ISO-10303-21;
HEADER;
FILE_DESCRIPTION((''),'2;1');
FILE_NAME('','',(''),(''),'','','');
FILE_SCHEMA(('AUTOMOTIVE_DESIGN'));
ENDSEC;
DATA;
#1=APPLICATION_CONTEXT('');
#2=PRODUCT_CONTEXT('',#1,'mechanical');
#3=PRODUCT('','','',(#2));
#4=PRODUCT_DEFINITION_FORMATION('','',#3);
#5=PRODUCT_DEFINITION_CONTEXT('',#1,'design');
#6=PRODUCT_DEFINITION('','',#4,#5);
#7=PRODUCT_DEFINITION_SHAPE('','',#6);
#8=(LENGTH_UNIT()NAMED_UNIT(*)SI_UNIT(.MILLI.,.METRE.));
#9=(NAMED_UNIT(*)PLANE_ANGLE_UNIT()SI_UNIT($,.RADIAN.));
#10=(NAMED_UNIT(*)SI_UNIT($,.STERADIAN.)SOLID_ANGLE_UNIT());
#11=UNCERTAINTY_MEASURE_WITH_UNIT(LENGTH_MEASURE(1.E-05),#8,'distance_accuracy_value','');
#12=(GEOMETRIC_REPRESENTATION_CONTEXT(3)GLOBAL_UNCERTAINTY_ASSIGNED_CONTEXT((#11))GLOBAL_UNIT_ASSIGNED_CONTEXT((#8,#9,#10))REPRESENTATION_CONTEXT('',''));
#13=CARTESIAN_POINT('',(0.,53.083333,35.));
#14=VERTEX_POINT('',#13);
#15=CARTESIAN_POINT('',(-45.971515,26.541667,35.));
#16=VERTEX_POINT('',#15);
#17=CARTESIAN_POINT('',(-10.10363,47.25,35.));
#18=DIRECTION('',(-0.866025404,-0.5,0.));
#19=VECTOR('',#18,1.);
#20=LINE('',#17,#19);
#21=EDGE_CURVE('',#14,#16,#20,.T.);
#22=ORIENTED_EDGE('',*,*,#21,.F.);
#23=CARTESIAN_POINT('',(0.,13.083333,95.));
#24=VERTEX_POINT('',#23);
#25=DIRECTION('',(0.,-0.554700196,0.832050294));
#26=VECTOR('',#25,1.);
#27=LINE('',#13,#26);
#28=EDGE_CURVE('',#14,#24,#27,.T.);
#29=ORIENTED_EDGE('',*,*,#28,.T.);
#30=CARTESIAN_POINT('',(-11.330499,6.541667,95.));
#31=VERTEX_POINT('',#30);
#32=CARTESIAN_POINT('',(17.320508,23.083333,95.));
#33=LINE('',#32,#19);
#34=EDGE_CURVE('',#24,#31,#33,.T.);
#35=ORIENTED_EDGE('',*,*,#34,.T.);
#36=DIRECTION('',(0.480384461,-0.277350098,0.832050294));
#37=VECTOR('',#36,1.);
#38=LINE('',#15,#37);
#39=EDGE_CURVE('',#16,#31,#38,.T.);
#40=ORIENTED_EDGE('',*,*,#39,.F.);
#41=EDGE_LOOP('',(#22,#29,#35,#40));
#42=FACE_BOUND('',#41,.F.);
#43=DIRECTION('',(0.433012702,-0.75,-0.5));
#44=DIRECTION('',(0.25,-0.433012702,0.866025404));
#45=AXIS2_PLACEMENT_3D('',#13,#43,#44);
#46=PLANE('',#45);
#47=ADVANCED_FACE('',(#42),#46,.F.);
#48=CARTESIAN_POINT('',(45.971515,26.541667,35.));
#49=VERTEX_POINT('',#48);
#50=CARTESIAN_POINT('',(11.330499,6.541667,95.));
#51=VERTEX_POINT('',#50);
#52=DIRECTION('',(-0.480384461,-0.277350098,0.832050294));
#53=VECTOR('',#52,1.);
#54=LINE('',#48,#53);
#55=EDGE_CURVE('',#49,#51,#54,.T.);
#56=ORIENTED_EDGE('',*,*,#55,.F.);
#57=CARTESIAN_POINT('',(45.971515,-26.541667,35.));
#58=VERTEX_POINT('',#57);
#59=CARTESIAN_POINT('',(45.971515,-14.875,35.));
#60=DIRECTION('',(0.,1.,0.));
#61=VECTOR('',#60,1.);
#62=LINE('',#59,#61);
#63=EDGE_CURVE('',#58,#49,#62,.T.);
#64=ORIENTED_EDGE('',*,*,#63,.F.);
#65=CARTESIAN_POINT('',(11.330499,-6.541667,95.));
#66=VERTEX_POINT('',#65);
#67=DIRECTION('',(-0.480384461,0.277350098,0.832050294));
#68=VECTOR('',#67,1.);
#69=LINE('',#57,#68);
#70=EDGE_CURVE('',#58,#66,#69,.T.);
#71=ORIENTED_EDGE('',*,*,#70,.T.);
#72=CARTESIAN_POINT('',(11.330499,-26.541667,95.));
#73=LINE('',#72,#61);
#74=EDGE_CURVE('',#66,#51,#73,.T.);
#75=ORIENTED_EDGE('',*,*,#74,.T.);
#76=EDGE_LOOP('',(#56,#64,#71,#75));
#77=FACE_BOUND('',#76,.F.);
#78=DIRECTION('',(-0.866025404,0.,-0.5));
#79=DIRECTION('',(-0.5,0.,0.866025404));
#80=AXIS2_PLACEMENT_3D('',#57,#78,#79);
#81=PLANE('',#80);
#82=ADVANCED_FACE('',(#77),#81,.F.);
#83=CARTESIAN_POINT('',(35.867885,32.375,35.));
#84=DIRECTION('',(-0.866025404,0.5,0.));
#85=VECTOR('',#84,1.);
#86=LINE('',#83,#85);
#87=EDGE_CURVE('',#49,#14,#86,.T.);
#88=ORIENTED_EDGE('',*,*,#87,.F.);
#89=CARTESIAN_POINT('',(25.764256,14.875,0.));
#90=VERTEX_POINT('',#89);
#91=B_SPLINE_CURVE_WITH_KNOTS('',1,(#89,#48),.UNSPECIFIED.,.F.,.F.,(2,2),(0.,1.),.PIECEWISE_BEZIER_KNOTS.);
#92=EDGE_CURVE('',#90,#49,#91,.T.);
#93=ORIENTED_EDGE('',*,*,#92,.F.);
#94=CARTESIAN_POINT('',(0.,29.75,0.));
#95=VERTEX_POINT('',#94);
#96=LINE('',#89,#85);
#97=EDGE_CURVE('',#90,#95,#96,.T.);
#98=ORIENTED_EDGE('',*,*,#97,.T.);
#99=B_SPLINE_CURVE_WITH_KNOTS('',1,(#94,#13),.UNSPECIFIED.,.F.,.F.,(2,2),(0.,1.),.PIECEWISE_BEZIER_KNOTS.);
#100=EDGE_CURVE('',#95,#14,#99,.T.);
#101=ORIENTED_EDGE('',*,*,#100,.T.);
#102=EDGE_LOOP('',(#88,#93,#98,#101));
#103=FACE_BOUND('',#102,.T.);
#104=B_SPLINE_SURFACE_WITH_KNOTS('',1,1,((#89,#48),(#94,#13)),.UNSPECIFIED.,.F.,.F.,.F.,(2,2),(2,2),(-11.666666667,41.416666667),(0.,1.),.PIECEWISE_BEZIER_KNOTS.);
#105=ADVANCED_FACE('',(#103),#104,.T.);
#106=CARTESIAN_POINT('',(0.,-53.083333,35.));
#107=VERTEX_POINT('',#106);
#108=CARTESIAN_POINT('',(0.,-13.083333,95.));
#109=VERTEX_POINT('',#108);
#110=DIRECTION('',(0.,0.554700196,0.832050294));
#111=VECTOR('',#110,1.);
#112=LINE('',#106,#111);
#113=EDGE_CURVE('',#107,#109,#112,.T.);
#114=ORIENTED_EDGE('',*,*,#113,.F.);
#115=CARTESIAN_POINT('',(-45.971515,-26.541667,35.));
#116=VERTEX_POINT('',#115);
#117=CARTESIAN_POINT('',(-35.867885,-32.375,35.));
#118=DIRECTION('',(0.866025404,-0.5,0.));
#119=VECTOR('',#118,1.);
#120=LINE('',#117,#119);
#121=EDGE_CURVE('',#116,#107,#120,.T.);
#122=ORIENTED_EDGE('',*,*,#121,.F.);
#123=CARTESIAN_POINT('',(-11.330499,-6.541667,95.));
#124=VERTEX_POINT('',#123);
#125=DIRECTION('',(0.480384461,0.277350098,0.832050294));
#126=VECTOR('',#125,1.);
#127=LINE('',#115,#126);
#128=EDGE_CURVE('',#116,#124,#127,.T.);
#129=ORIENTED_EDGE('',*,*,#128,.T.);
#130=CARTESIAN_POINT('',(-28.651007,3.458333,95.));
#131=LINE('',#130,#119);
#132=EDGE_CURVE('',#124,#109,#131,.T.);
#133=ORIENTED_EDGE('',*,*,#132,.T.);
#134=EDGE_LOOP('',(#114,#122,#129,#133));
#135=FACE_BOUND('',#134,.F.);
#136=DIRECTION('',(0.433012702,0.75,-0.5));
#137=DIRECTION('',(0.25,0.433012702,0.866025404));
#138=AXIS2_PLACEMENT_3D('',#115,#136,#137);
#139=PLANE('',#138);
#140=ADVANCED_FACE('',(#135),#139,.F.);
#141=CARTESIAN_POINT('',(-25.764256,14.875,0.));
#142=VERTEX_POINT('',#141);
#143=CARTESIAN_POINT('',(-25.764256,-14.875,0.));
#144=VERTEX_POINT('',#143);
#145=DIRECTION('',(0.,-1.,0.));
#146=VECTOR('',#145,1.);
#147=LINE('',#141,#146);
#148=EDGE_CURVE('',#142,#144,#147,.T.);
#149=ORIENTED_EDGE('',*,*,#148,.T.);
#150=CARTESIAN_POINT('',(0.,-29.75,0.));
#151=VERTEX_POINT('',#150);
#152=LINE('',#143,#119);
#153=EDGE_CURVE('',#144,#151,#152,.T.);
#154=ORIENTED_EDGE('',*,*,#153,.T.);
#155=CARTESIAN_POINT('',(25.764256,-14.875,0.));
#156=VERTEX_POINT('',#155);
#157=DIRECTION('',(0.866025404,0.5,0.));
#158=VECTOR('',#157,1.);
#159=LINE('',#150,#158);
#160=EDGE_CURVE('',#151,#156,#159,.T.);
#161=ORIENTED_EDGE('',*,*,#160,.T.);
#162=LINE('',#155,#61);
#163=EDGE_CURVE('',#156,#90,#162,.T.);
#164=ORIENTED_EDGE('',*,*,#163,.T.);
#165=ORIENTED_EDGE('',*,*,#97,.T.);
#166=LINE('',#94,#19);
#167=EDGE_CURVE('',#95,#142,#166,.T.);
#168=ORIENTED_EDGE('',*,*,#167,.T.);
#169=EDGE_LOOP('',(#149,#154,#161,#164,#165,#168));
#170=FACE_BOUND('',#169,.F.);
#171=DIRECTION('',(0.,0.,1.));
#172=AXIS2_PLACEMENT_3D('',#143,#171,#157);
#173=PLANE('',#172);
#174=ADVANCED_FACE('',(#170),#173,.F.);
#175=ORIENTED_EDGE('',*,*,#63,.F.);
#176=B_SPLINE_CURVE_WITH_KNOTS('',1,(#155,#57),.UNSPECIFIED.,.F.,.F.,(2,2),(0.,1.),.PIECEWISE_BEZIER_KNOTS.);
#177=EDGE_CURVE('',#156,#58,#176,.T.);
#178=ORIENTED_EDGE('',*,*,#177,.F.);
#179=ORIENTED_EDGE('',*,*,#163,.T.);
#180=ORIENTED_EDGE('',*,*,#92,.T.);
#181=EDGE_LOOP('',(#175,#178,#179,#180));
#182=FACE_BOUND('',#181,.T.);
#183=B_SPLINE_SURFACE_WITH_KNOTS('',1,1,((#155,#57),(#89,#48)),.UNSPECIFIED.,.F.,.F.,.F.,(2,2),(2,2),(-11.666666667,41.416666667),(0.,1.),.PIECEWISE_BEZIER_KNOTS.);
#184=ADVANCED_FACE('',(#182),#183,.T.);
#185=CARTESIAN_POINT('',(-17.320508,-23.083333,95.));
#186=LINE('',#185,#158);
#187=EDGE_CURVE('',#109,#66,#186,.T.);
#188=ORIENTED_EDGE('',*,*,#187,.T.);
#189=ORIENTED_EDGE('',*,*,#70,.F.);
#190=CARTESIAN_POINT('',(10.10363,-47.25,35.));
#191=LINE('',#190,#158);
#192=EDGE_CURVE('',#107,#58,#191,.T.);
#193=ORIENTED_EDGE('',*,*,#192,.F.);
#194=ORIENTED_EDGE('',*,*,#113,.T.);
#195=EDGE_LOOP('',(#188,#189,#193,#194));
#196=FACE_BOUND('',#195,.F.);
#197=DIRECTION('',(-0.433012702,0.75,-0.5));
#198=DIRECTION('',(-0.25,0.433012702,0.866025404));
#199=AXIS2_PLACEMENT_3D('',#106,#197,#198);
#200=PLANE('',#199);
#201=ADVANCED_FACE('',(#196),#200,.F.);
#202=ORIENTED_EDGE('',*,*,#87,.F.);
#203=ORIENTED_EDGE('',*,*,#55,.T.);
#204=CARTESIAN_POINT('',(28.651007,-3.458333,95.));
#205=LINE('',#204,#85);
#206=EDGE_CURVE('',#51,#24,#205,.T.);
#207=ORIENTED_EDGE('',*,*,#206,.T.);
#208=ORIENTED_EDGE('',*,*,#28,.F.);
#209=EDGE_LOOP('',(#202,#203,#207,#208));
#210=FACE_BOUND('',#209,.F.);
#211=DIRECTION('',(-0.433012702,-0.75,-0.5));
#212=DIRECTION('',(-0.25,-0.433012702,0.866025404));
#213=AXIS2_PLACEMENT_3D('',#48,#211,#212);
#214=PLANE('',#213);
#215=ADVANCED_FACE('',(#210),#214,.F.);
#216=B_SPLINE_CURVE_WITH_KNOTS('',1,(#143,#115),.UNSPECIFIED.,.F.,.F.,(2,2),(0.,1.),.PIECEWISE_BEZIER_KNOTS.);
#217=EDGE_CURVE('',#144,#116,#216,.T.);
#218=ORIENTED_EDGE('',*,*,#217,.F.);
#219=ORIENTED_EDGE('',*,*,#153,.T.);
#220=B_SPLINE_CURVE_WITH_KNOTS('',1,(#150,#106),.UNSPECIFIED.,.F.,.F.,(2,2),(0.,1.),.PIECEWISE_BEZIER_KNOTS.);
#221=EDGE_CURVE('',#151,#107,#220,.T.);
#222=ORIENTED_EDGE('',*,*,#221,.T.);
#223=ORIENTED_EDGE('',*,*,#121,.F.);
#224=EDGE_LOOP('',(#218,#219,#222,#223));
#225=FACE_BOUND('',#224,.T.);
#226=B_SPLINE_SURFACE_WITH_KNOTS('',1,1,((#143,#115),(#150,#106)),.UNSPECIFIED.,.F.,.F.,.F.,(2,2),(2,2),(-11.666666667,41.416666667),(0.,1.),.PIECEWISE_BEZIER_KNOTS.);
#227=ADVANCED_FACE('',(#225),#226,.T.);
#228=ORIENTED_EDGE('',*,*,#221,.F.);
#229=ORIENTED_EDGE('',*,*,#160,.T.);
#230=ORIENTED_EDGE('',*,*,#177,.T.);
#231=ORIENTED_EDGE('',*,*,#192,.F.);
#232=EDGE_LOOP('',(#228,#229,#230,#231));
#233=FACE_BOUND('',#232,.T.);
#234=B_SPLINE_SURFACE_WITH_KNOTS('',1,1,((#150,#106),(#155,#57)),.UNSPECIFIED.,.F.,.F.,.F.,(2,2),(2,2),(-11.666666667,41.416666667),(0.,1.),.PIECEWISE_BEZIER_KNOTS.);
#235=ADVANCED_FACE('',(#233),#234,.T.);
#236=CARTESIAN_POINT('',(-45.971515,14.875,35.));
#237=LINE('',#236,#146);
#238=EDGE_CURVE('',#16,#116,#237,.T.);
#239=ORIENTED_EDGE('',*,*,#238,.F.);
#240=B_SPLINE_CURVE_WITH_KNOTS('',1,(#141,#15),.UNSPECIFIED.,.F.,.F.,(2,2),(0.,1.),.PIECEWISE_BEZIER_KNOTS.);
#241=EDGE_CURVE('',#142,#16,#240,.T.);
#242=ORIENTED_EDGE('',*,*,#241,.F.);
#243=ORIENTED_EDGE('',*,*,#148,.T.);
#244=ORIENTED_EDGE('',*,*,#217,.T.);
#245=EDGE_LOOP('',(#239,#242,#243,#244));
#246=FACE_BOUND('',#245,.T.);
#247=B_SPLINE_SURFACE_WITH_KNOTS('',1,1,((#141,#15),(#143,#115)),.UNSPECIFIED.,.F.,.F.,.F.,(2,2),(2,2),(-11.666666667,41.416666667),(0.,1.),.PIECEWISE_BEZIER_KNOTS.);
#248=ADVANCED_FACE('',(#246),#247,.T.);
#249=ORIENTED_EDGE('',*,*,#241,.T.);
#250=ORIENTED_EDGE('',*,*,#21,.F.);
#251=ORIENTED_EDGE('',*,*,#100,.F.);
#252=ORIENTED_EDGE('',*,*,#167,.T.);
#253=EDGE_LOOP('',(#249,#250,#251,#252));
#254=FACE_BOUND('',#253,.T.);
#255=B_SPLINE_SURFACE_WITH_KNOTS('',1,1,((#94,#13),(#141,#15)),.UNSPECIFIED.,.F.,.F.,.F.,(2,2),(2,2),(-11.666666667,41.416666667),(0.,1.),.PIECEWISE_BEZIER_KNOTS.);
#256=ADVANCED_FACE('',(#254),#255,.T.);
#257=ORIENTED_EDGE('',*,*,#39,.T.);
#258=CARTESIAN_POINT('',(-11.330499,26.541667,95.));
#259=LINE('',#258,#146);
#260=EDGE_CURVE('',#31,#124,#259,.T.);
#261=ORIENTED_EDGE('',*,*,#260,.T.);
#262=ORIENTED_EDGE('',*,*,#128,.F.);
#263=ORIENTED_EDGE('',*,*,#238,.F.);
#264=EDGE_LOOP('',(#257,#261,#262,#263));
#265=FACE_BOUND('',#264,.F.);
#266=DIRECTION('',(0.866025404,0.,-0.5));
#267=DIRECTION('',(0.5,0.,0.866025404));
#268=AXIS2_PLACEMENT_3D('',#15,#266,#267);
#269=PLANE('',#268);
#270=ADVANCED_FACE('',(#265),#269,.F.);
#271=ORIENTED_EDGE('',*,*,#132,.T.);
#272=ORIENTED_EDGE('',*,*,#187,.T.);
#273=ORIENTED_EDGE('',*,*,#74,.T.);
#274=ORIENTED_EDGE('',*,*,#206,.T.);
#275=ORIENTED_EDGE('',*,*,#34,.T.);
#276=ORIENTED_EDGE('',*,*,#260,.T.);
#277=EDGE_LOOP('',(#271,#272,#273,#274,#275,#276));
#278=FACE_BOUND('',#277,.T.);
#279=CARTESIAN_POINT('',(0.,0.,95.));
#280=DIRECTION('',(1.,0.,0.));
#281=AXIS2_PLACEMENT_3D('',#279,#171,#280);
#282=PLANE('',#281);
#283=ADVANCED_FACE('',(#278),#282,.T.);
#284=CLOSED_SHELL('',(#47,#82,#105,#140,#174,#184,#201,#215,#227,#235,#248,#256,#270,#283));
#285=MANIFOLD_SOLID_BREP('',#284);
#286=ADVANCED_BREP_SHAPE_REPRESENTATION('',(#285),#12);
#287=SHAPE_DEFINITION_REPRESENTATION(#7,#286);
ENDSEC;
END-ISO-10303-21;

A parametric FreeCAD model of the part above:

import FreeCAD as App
import Part
import Sketcher

V = App.Vector
Q = App.Units.Quantity

doc = App.newDocument("Part")
body = doc.addObject("PartDesign::Body", "Body")

sketch1 = body.newObject("Sketcher::SketchObject", "Sketch")
sketch1.AttachmentSupport = (doc.getObject("XY_Plane"), [""])
sketch1.MapMode = "FlatFace"
sketch1.addGeometry(Part.LineSegment(V(-26, -15, 0), V(0, -30, 0)), False)
sketch1.addGeometry(Part.LineSegment(V(0, -30, 0), V(26, -15, 0)), False)
sketch1.addGeometry(Part.LineSegment(V(26, -15, 0), V(26, 15, 0)), False)
sketch1.addGeometry(Part.LineSegment(V(26, 15, 0), V(0, 30, 0)), False)
sketch1.addGeometry(Part.LineSegment(V(0, 30, 0), V(-26, 15, 0)), False)
sketch1.addGeometry(Part.LineSegment(V(-26, 15, 0), V(-26, -15, 0)), False)
sketch1.addConstraint(Sketcher.Constraint("Coincident", 0, 2, 1, 1))
sketch1.addConstraint(Sketcher.Constraint("Coincident", 1, 2, 2, 1))
sketch1.addConstraint(Sketcher.Constraint("Coincident", 2, 2, 3, 1))
sketch1.addConstraint(Sketcher.Constraint("Coincident", 3, 2, 4, 1))
sketch1.addConstraint(Sketcher.Constraint("Coincident", 4, 2, 5, 1))
sketch1.addConstraint(Sketcher.Constraint("Coincident", 5, 2, 0, 1))
sketch1.addConstraint(Sketcher.Constraint("Vertical", 2))
sketch1.addConstraint(Sketcher.Constraint("Vertical", 5))
sketch1.addConstraint(Sketcher.Constraint("Symmetric", 0, 2, 3, 2, -1, 1))
sketch1.addConstraint(Sketcher.Constraint("Symmetric", 1, 2, 4, 2, -1, 1))
sketch1.addConstraint(Sketcher.Constraint("PointOnObject", 0, 2, -2))
sketch1.addConstraint(Sketcher.Constraint("Parallel", 0, 3))
sketch1.addConstraint(Sketcher.Constraint("Horizontal", 2, 2, 4, 2))
sketch1.addConstraint(Sketcher.Constraint("Angle", 0, Q("-30 deg")))
sketch1.addConstraint(Sketcher.Constraint("DistanceY", 2, 1, 2, 2, 29.75))
sketch1.addConstraint(Sketcher.Constraint("DistanceY", 0, 2, 3, 2, 59.5))
pad1 = body.newObject("PartDesign::Pad", "Pad")
pad1.Profile = sketch1
pad1.Length = 35
pad1.TaperAngle = 30

sketch2 = body.newObject("Sketcher::SketchObject", "Sketch001")
sketch2.AttachmentSupport = (doc.getObject("XY_Plane"), [""])
sketch2.MapMode = "FlatFace"
sketch2.AttachmentOffset = App.Placement(V(0, 0, 35), App.Rotation())
sketch2.addGeometry(Part.LineSegment(V(-46, -27, 0), V(0, -53, 0)), False)
sketch2.addGeometry(Part.LineSegment(V(0, -53, 0), V(46, -27, 0)), False)
sketch2.addGeometry(Part.LineSegment(V(46, -27, 0), V(46, 27, 0)), False)
sketch2.addGeometry(Part.LineSegment(V(46, 27, 0), V(0, 53, 0)), False)
sketch2.addGeometry(Part.LineSegment(V(0, 53, 0), V(-46, 27, 0)), False)
sketch2.addGeometry(Part.LineSegment(V(-46, 27, 0), V(-46, -27, 0)), False)
sketch2.addConstraint(Sketcher.Constraint("Coincident", 0, 2, 1, 1))
sketch2.addConstraint(Sketcher.Constraint("Coincident", 1, 2, 2, 1))
sketch2.addConstraint(Sketcher.Constraint("Coincident", 2, 2, 3, 1))
sketch2.addConstraint(Sketcher.Constraint("Coincident", 3, 2, 4, 1))
sketch2.addConstraint(Sketcher.Constraint("Coincident", 4, 2, 5, 1))
sketch2.addConstraint(Sketcher.Constraint("Coincident", 5, 2, 0, 1))
sketch2.addConstraint(Sketcher.Constraint("Vertical", 2))
sketch2.addConstraint(Sketcher.Constraint("Vertical", 5))
sketch2.addConstraint(Sketcher.Constraint("Symmetric", 0, 2, 3, 2, -1, 1))
sketch2.addConstraint(Sketcher.Constraint("Symmetric", 1, 2, 4, 2, -1, 1))
sketch2.addConstraint(Sketcher.Constraint("PointOnObject", 0, 2, -2))
sketch2.addConstraint(Sketcher.Constraint("Parallel", 0, 3))
sketch2.addConstraint(Sketcher.Constraint("Horizontal", 2, 2, 4, 2))
sketch2.addConstraint(Sketcher.Constraint("Angle", 0, Q("-30 deg")))
sketch2.addConstraint(Sketcher.Constraint("DistanceY", 0, 2, 2, 2, 79.625))
sketch2.addConstraint(Sketcher.Constraint("DistanceY", 2, 1, 2, 2, 53.083333))
pad2 = body.newObject("PartDesign::Pad", "Pad001")
pad2.Profile = sketch2
pad2.Length = 60
pad2.TaperAngle = -30

doc.recompute()
